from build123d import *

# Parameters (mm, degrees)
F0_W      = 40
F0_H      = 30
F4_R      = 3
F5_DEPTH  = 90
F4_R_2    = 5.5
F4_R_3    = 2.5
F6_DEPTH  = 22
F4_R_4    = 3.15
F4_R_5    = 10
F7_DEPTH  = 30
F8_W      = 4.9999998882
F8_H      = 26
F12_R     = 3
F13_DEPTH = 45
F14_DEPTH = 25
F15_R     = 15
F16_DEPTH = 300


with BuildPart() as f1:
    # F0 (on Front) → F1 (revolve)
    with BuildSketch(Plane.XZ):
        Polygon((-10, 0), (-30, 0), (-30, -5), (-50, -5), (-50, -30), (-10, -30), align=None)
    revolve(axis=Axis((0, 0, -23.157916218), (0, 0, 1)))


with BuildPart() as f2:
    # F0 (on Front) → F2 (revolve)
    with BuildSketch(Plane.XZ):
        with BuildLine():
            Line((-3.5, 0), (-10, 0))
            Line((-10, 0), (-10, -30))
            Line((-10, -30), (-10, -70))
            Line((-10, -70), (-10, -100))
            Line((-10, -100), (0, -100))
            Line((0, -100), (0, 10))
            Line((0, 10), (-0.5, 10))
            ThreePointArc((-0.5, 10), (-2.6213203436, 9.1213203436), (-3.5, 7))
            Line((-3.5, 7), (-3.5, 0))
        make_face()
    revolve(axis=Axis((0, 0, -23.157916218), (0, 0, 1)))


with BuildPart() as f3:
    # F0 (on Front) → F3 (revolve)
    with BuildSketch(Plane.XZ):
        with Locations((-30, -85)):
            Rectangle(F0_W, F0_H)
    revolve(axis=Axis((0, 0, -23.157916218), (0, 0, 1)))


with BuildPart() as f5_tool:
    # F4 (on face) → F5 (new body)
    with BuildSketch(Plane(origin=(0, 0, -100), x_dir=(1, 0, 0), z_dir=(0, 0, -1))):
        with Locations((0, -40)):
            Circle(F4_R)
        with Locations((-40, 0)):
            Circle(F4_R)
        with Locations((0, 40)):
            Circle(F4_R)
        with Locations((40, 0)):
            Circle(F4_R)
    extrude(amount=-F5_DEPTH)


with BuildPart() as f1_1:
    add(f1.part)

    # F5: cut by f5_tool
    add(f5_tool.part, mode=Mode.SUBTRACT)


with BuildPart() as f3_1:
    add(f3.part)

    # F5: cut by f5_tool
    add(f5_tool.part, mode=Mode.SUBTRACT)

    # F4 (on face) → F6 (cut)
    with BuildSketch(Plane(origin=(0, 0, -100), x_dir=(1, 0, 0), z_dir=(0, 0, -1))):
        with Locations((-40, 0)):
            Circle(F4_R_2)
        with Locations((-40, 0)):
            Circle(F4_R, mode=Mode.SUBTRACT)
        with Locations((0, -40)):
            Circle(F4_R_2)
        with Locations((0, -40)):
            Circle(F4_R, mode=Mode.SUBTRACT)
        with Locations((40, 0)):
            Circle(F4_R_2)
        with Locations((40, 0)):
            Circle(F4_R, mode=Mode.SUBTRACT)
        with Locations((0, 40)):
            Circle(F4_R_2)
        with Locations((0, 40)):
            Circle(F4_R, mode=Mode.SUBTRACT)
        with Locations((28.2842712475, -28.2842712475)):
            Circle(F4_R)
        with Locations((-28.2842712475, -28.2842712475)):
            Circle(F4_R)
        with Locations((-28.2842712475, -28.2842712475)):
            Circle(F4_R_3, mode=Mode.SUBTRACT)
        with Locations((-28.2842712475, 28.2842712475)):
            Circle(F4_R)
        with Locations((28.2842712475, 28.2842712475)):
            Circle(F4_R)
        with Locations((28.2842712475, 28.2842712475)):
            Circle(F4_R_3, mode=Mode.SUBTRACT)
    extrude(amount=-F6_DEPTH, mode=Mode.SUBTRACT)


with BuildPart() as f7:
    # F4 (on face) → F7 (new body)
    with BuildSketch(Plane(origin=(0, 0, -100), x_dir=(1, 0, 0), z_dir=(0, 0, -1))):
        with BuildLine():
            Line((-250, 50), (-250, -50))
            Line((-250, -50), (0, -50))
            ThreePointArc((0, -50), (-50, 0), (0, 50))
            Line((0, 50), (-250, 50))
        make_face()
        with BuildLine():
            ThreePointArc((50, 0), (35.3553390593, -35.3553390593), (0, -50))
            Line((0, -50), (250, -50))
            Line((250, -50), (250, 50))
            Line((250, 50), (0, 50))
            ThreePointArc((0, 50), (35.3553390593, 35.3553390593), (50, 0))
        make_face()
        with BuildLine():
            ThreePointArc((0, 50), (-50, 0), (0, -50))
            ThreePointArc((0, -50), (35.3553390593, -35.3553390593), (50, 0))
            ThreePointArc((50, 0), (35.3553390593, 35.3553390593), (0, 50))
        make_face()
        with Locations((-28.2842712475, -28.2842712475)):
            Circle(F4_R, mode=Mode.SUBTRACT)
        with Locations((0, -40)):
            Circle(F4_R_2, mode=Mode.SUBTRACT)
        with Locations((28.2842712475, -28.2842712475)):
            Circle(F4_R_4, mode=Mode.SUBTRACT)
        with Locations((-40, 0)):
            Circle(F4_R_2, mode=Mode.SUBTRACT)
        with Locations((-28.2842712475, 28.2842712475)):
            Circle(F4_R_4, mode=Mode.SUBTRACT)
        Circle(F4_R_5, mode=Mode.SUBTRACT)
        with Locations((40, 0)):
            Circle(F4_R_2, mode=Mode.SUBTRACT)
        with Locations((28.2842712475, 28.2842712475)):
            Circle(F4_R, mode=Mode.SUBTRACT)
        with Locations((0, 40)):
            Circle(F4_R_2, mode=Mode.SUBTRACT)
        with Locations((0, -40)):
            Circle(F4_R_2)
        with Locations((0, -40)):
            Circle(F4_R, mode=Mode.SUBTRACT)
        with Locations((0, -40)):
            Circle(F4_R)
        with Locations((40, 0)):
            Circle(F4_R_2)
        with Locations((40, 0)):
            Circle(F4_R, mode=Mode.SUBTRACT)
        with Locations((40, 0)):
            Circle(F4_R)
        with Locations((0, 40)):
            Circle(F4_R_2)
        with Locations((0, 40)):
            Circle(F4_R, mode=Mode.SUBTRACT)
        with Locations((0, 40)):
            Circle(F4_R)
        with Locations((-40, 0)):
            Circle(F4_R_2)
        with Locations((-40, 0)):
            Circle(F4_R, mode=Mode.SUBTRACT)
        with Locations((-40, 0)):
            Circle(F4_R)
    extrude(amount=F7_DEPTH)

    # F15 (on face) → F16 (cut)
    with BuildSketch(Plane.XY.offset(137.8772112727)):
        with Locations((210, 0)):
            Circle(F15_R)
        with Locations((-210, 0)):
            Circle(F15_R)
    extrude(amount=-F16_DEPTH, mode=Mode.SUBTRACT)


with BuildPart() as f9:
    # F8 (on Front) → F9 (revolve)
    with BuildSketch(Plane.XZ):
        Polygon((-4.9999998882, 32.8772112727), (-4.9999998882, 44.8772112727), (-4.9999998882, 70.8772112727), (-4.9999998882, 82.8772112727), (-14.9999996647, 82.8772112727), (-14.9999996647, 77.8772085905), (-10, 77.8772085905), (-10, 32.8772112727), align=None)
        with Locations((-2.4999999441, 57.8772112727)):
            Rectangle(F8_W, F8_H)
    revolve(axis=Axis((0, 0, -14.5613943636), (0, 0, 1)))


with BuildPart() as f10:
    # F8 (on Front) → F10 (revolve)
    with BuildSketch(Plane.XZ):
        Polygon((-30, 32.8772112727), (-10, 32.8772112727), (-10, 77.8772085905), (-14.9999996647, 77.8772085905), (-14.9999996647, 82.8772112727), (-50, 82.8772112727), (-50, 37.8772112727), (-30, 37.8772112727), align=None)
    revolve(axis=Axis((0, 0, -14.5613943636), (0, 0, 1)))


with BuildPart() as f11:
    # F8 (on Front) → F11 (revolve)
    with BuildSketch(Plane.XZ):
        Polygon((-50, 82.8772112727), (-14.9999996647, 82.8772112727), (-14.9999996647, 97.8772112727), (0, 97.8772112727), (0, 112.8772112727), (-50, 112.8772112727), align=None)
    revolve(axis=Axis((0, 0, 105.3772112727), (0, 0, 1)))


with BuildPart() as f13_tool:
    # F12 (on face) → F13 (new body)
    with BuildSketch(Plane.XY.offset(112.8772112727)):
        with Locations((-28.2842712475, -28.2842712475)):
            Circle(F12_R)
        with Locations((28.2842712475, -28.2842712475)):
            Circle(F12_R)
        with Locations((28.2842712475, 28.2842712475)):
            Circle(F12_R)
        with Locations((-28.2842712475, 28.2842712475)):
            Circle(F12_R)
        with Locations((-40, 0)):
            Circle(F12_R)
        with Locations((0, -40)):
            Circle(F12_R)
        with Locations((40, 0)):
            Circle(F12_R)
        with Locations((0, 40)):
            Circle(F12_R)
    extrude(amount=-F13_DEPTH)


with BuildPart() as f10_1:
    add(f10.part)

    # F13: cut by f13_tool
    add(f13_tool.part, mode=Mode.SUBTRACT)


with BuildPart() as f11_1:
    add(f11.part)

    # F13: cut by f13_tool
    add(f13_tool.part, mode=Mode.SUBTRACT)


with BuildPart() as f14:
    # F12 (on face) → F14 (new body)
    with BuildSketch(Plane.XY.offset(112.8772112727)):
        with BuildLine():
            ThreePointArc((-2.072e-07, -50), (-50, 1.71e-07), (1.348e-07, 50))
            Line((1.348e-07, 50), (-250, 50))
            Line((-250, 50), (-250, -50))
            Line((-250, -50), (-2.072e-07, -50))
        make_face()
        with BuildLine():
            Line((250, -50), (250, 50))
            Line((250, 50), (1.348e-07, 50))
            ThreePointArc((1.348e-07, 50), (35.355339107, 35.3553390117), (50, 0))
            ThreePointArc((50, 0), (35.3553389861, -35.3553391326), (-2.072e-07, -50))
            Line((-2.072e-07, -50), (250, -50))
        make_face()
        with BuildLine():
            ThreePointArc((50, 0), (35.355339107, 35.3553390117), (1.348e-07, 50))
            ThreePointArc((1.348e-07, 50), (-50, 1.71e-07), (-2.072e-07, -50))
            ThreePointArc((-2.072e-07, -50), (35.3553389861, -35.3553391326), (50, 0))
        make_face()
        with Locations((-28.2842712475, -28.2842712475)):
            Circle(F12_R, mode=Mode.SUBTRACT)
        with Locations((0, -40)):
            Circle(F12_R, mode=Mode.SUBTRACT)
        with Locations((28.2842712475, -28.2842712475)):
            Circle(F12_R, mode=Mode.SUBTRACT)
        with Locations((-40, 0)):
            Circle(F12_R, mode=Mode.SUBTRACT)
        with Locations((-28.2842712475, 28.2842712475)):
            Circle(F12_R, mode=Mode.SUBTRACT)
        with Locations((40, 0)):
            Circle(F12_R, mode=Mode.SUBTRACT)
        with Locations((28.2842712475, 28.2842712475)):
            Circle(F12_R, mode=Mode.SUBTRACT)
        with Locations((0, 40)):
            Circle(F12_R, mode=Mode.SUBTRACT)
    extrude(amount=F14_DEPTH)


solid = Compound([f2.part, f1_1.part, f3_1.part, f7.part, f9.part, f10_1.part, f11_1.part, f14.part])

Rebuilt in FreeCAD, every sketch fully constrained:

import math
import FreeCAD as App
import Part
import Sketcher


def add_polygon(sketch, points):
    """Adds a closed chain of lines whose ends are joined by coincident constraints."""
    first, n = sketch.GeometryCount, len(points)
    for a, b in zip(points, points[1:] + points[:1]):
        sketch.addGeometry(Part.LineSegment(App.Vector(*a, 0), App.Vector(*b, 0)), False)
    for i in range(n):
        sketch.addConstraint(Sketcher.Constraint("Coincident", first + i, 2, first + (i + 1) % n, 1))

doc = App.newDocument("Part")
body = doc.addObject("PartDesign::Body", "Body")

# Sketch on XZ plane
sketch1 = body.newObject("Sketcher::SketchObject", "Sketch")
sketch1.AttachmentSupport = (doc.getObject("XZ_Plane"), [""])
sketch1.MapMode = "FlatFace"
add_polygon(sketch1, [(-10, 0), (-30, 0), (-30, -5), (-50, -5), (-50, -30), (-10, -30)])  # lines 0-5
sketch1.addConstraint([
    Sketcher.Constraint("Horizontal", 0),
    Sketcher.Constraint("Vertical", 1),
    Sketcher.Constraint("Horizontal", 2),
    Sketcher.Constraint("Vertical", 3),
    Sketcher.Constraint("Horizontal", 4),
    Sketcher.Constraint("Vertical", 5),
    Sketcher.Constraint("PointOnObject", 0, 2, -1),
    Sketcher.Constraint("Equal", 0, 2),
    Sketcher.Constraint("DistanceX", 0, 2, 0, 1, 20.0),
    Sketcher.Constraint("DistanceY", 1, 2, 1, 1, 5.0),
    Sketcher.Constraint("DistanceY", 3, 2, 3, 1, 25.0),
    Sketcher.Constraint("DistanceX", 0, 2, -1, 1, 30.0),
])
revolution = body.newObject("PartDesign::Revolution", "Revolution")
revolution.Profile = sketch1
revolution.ReferenceAxis = (sketch1, ["V_Axis"])
revolution.Angle = 360
body2 = doc.addObject("PartDesign::Body", "Body001")

# Sketch on XZ plane
sketch2 = body2.newObject("Sketcher::SketchObject", "Sketch001")
sketch2.AttachmentSupport = (doc.getObject("XZ_Plane001"), [""])
sketch2.MapMode = "FlatFace"
sketch2.addGeometry([
    Part.LineSegment(App.Vector(-3.5, 0, 0), App.Vector(-10, 0, 0)),  # 0
    Part.LineSegment(App.Vector(-10, 0, 0), App.Vector(-10, -100, 0)),  # 1
    Part.LineSegment(App.Vector(-10, -100, 0), App.Vector(0, -100, 0)),  # 2
    Part.LineSegment(App.Vector(0, -100, 0), App.Vector(0, 10, 0)),  # 3
    Part.LineSegment(App.Vector(0, 10, 0), App.Vector(-0.5, 10, 0)),  # 4
    Part.ArcOfCircle(Part.Circle(App.Vector(-0.5, 7, 0), App.Vector(0, 0, 1), 3), math.radians(90), math.radians(180)),  # 5
    Part.LineSegment(App.Vector(-3.5, 7, 0), App.Vector(-3.5, 0, 0)),  # 6
], False)
sketch2.addConstraint([
    Sketcher.Constraint("Coincident", 0, 2, 1, 1),
    Sketcher.Constraint("Coincident", 1, 2, 2, 1),
    Sketcher.Constraint("Coincident", 2, 2, 3, 1),
    Sketcher.Constraint("Coincident", 3, 2, 4, 1),
    Sketcher.Constraint("Tangent", 4, 2, 5, 1),
    Sketcher.Constraint("Tangent", 5, 2, 6, 1),
    Sketcher.Constraint("Coincident", 6, 2, 0, 1),
    Sketcher.Constraint("Horizontal", 0),
    Sketcher.Constraint("Vertical", 1),
    Sketcher.Constraint("Horizontal", 2),
    Sketcher.Constraint("Vertical", 3),
    Sketcher.Constraint("Horizontal", 4),
    Sketcher.Constraint("Vertical", 6),
    Sketcher.Constraint("PointOnObject", 0, 2, -1),
    Sketcher.Constraint("PointOnObject", 2, 2, -2),
    Sketcher.Constraint("Radius", 5, 3.0),
    Sketcher.Constraint("DistanceX", 2, 1, 2, 2, 10.0),
    Sketcher.Constraint("DistanceY", 1, 2, 1, 1, 100.0),
    Sketcher.Constraint("DistanceY", 3, 1, 3, 2, 110.0),
    Sketcher.Constraint("DistanceX", 0, 2, 0, 1, 6.5),
])
revolution2 = body2.newObject("PartDesign::Revolution", "Revolution001")
revolution2.Profile = sketch2
revolution2.ReferenceAxis = (sketch2, ["V_Axis"])
revolution2.Angle = 360
body3 = doc.addObject("PartDesign::Body", "Body002")

# Sketch on XZ plane
sketch3 = body3.newObject("Sketcher::SketchObject", "Sketch002")
sketch3.AttachmentSupport = (doc.getObject("XZ_Plane002"), [""])
sketch3.MapMode = "FlatFace"
add_polygon(sketch3, [(-50, -70), (-50, -100), (-10, -100), (-10, -70)])  # lines 0-3
sketch3.addConstraint([
    Sketcher.Constraint("Vertical", 0),
    Sketcher.Constraint("Horizontal", 1),
    Sketcher.Constraint("Vertical", 2),
    Sketcher.Constraint("Horizontal", 3),
    Sketcher.Constraint("DistanceX", 1, 1, 1, 2, 40.0),
    Sketcher.Constraint("DistanceY", 0, 2, 0, 1, 30.0),
    Sketcher.Constraint("DistanceX", 0, 2, -1, 1, 50.0),
    Sketcher.Constraint("DistanceY", 0, 2, -1, 1, 100.0),
])
revolution3 = body3.newObject("PartDesign::Revolution", "Revolution002")
revolution3.Profile = sketch3
revolution3.ReferenceAxis = (sketch3, ["V_Axis"])
revolution3.Angle = 360
body4 = doc.addObject("PartDesign::Body", "Body003")
body4.AllowCompound = True

# Sketch on XY plane
sketch4 = body4.newObject("Sketcher::SketchObject", "Sketch003")
sketch4.AttachmentSupport = (doc.getObject("XY_Plane003"), [""])
sketch4.MapMode = "FlatFace"
sketch4.AttachmentOffset = App.Placement(App.Vector(0, 0, -100), App.Rotation())
sketch4.addGeometry([
    Part.Circle(App.Vector(0, 40, 0), App.Vector(0, 0, 1), 3),
    Part.Circle(App.Vector(-40, 0, 0), App.Vector(0, 0, 1), 3),
    Part.Circle(App.Vector(0, -40, 0), App.Vector(0, 0, 1), 3),
    Part.Circle(App.Vector(40, 0, 0), App.Vector(0, 0, 1), 3),
], False)
sketch4.addConstraint([
    Sketcher.Constraint("Equal", 0, 1),
    Sketcher.Constraint("Equal", 1, 2),
    Sketcher.Constraint("Equal", 2, 3),
    Sketcher.Constraint("Symmetric", 0, 3, 2, 3, -1, 1),
    Sketcher.Constraint("Symmetric", 1, 3, 3, 3, -1, 1),
    Sketcher.Constraint("PointOnObject", 0, 3, -2),
    Sketcher.Constraint("PointOnObject", 1, 3, -1),
    Sketcher.Constraint("Diameter", 0, 6.0),
    Sketcher.Constraint("DistanceY", -1, 1, 0, 3, 40.0),
    Sketcher.Constraint("DistanceX", 1, 3, -1, 1, 40.0),
])
pad1 = body4.newObject("PartDesign::Pad", "Pad")
pad1.Profile = sketch4
pad1.Length = 90
doc.recompute()

body5 = doc.addObject("PartDesign::Body", "Body004")
body5.BaseFeature = body4
boolean = body.newObject("PartDesign::Boolean", "Boolean")
boolean.Type = "Cut"
boolean.addObjects([body5])
doc.recompute()

boolean2 = body3.newObject("PartDesign::Boolean", "Boolean001")
boolean2.Type = "Cut"
boolean2.addObjects([body4])

# Sketch on XY plane
sketch5 = body3.newObject("Sketcher::SketchObject", "Sketch004")
sketch5.AttachmentSupport = (doc.getObject("XY_Plane002"), [""])
sketch5.MapMode = "FlatFace"
sketch5.AttachmentOffset = App.Placement(App.Vector(0, 0, -100), App.Rotation())
sketch5.addGeometry([
    Part.Circle(App.Vector(-40, 0, 0), App.Vector(0, 0, 1), 5.5),  # 0
    Part.Circle(App.Vector(-40, 0, 0), App.Vector(0, 0, 1), 3),  # 1
    Part.Circle(App.Vector(0, 40, 0), App.Vector(0, 0, 1), 5.5),  # 2
    Part.Circle(App.Vector(0, 40, 0), App.Vector(0, 0, 1), 3),  # 3
    Part.Circle(App.Vector(40, 0, 0), App.Vector(0, 0, 1), 5.5),  # 4
    Part.Circle(App.Vector(40, 0, 0), App.Vector(0, 0, 1), 3),  # 5
    Part.Circle(App.Vector(0, -40, 0), App.Vector(0, 0, 1), 5.5),  # 6
    Part.Circle(App.Vector(0, -40, 0), App.Vector(0, 0, 1), 3),  # 7
    Part.Circle(App.Vector(28.284271, 28.284271, 0), App.Vector(0, 0, 1), 3),  # 8
    Part.Circle(App.Vector(-28.284271, 28.284271, 0), App.Vector(0, 0, 1), 3),  # 9
    Part.Circle(App.Vector(-28.284271, 28.284271, 0), App.Vector(0, 0, 1), 2.5),  # 10
    Part.Circle(App.Vector(-28.284271, -28.284271, 0), App.Vector(0, 0, 1), 3),  # 11
    Part.Circle(App.Vector(28.284271, -28.284271, 0), App.Vector(0, 0, 1), 3),  # 12
    Part.Circle(App.Vector(28.284271, -28.284271, 0), App.Vector(0, 0, 1), 2.5),  # 13
], False)
sketch5.addConstraint([
    Sketcher.Constraint("Coincident", 1, 3, 0, 3),
    Sketcher.Constraint("Coincident", 3, 3, 2, 3),
    Sketcher.Constraint("Coincident", 5, 3, 4, 3),
    Sketcher.Constraint("Coincident", 7, 3, 6, 3),
    Sketcher.Constraint("Coincident", 10, 3, 9, 3),
    Sketcher.Constraint("Coincident", 13, 3, 12, 3),
    Sketcher.Constraint("Equal", 0, 2),
    Sketcher.Constraint("Equal", 1, 3),
    Sketcher.Constraint("Equal", 2, 4),
    Sketcher.Constraint("Equal", 3, 5),
    Sketcher.Constraint("Equal", 4, 6),
    Sketcher.Constraint("Equal", 5, 7),
    Sketcher.Constraint("Equal", 7, 8),
    Sketcher.Constraint("Equal", 8, 9),
    Sketcher.Constraint("Equal", 9, 11),
    Sketcher.Constraint("Equal", 11, 12),
    Sketcher.Constraint("Equal", 10, 13),
    Sketcher.Constraint("Symmetric", 0, 3, 4, 3, -1, 1),
    Sketcher.Constraint("Symmetric", 2, 3, 6, 3, -1, 1),
    Sketcher.Constraint("Symmetric", 8, 3, 11, 3, -1, 1),
    Sketcher.Constraint("Symmetric", 9, 3, 12, 3, -1, 1),
    Sketcher.Constraint("Symmetric", 8, 3, 9, 3, -2),
    Sketcher.Constraint("PointOnObject", 0, 3, -1),
    Sketcher.Constraint("PointOnObject", 2, 3, -2),
    Sketcher.Constraint("Diameter", 0, 11.0),
    Sketcher.Constraint("Diameter", 1, 6.0),
    Sketcher.Constraint("Diameter", 10, 5.0),
    Sketcher.Constraint("DistanceX", 0, 3, -1, 1, 40.0),
    Sketcher.Constraint("DistanceY", -1, 1, 2, 3, 40.0),
    Sketcher.Constraint("DistanceX", -1, 1, 8, 3, 28.284271),
    Sketcher.Constraint("DistanceY", -1, 1, 8, 3, 28.284271),
])
pocket1 = body3.newObject("PartDesign::Pocket", "Pocket")
pocket1.Profile = sketch5
pocket1.Length = 22
pocket1.Reversed = True
body6 = doc.addObject("PartDesign::Body", "Body005")

# Sketch on XY plane
sketch6 = body6.newObject("Sketcher::SketchObject", "Sketch005")
sketch6.AttachmentSupport = (doc.getObject("XY_Plane005"), [""])
sketch6.MapMode = "FlatFace"
sketch6.AttachmentOffset = App.Placement(App.Vector(0, 0, -100), App.Rotation())
add_polygon(sketch6, [(-250, -50), (-250, 50), (250, 50), (250, -50)])  # lines 0-3
sketch6.addGeometry(Part.Circle(App.Vector(-28.284271, 28.284271, 0), App.Vector(0, 0, 1), 3), False)  # 4
sketch6.addGeometry(Part.Circle(App.Vector(28.284271, 28.284271, 0), App.Vector(0, 0, 1), 3.15), False)  # 5
sketch6.addGeometry(Part.Circle(App.Vector(-28.284271, -28.284271, 0), App.Vector(0, 0, 1), 3.15), False)  # 6
sketch6.addGeometry(Part.Circle(App.Vector(0, 0, 0), App.Vector(0, 0, 1), 10), False)  # 7
sketch6.addGeometry(Part.Circle(App.Vector(28.284271, -28.284271, 0), App.Vector(0, 0, 1), 3), False)  # 8
sketch6.addConstraint([
    Sketcher.Constraint("Vertical", 0),
    Sketcher.Constraint("Horizontal", 1),
    Sketcher.Constraint("Vertical", 2),
    Sketcher.Constraint("Horizontal", 3),
    Sketcher.Constraint("Coincident", 7, 3, -1, 1),
    Sketcher.Constraint("Equal", 5, 6),
    Sketcher.Constraint("Equal", 4, 8),
    Sketcher.Constraint("Symmetric", 5, 3, 6, 3, -1, 1),
    Sketcher.Constraint("Symmetric", 4, 3, 8, 3, -1, 1),
    Sketcher.Constraint("Symmetric", 0, 2, 2, 2, -1, 1),
    Sketcher.Constraint("Symmetric", 4, 3, 5, 3, -2),
    Sketcher.Constraint("Diameter", 4, 6.0),
    Sketcher.Constraint("Diameter", 7, 20.0),
    Sketcher.Constraint("Diameter", 5, 6.3),
    Sketcher.Constraint("DistanceX", 1, 1, 1, 2, 500.0),
    Sketcher.Constraint("DistanceY", 0, 1, 0, 2, 100.0),
    Sketcher.Constraint("DistanceX", 4, 3, -1, 1, 28.284271),
    Sketcher.Constraint("DistanceY", -1, 1, 4, 3, 28.284271),
])
pad2 = body6.newObject("PartDesign::Pad", "Pad001")
pad2.Profile = sketch6
pad2.Length = 30
pad2.Reversed = True

# Sketch on XY plane
sketch7 = body6.newObject("Sketcher::SketchObject", "Sketch006")
sketch7.AttachmentSupport = (doc.getObject("XY_Plane005"), [""])
sketch7.MapMode = "FlatFace"
sketch7.AttachmentOffset = App.Placement(App.Vector(0, 0, 137.877211), App.Rotation())
sketch7.addGeometry([
    Part.Circle(App.Vector(210, 0, 0), App.Vector(0, 0, 1), 15),
    Part.Circle(App.Vector(-210, 0, 0), App.Vector(0, 0, 1), 15),
], False)
sketch7.addConstraint([
    Sketcher.Constraint("Equal", 0, 1),
    Sketcher.Constraint("Symmetric", 0, 3, 1, 3, -1, 1),
    Sketcher.Constraint("PointOnObject", 0, 3, -1),
    Sketcher.Constraint("Diameter", 0, 30.0),
    Sketcher.Constraint("DistanceX", -1, 1, 0, 3, 210.0),
])
pocket2 = body6.newObject("PartDesign::Pocket", "Pocket001")
pocket2.Profile = sketch7
pocket2.Length = 300
body7 = doc.addObject("PartDesign::Body", "Body006")

# Sketch on XZ plane
sketch8 = body7.newObject("Sketcher::SketchObject", "Sketch007")
sketch8.AttachmentSupport = (doc.getObject("XZ_Plane006"), [""])
sketch8.MapMode = "FlatFace"
add_polygon(sketch8, [(-5, 32.877211), (-5, 44.877211), (0, 44.877211), (0, 70.877211), (-5, 70.877211), (-5, 82.877211), (-15, 82.877211), (-15, 77.877209), (-10, 77.877209), (-10, 32.877211)])  # lines 0-9
sketch8.addConstraint([
    Sketcher.Constraint("Vertical", 0),
    Sketcher.Constraint("Horizontal", 1),
    Sketcher.Constraint("Vertical", 2),
    Sketcher.Constraint("Horizontal", 3),
    Sketcher.Constraint("Vertical", 4),
    Sketcher.Constraint("Horizontal", 5),
    Sketcher.Constraint("Vertical", 6),
    Sketcher.Constraint("Horizontal", 7),
    Sketcher.Constraint("Vertical", 8),
    Sketcher.Constraint("Horizontal", 9),
    Sketcher.Constraint("PointOnObject", 1, 2, -2),
    Sketcher.Constraint("Vertical", 0, 2, 3, 2),
    Sketcher.Constraint("Equal", 3, 7),
    Sketcher.Constraint("Equal", 7, 9),
    Sketcher.Constraint("Equal", 0, 4),
    Sketcher.Constraint("DistanceX", 1, 1, 1, 2, 5.0),
    Sketcher.Constraint("DistanceY", 0, 1, 0, 2, 12.0),
    Sketcher.Constraint("DistanceY", 2, 1, 2, 2, 26.0),
    Sketcher.Constraint("DistanceY", 6, 2, 6, 1, 5.000003),
    Sketcher.Constraint("DistanceY", -1, 1, 0, 2, 44.877211),
])
revolution4 = body7.newObject("PartDesign::Revolution", "Revolution003")
revolution4.Profile = sketch8
revolution4.ReferenceAxis = (sketch8, ["V_Axis"])
revolution4.Angle = 360
body8 = doc.addObject("PartDesign::Body", "Body007")

# Sketch on XZ plane
sketch9 = body8.newObject("Sketcher::SketchObject", "Sketch008")
sketch9.AttachmentSupport = (doc.getObject("XZ_Plane007"), [""])
sketch9.MapMode = "FlatFace"
add_polygon(sketch9, [(-30, 32.877211), (-10, 32.877211), (-10, 77.877209), (-15, 77.877209), (-15, 82.877211), (-50, 82.877211), (-50, 37.877211), (-30, 37.877211)])  # lines 0-7
sketch9.addConstraint([
    Sketcher.Constraint("Horizontal", 0),
    Sketcher.Constraint("Vertical", 1),
    Sketcher.Constraint("Horizontal", 2),
    Sketcher.Constraint("Vertical", 3),
    Sketcher.Constraint("Horizontal", 4),
    Sketcher.Constraint("Vertical", 5),
    Sketcher.Constraint("Horizontal", 6),
    Sketcher.Constraint("Vertical", 7),
    Sketcher.Constraint("Equal", 0, 6),
    Sketcher.Constraint("Equal", 2, 7),
    Sketcher.Constraint("DistanceX", 0, 1, 0, 2, 20.0),
    Sketcher.Constraint("DistanceX", 2, 2, 2, 1, 5.0),
    Sketcher.Constraint("DistanceY", 5, 2, 5, 1, 45.0),
    Sketcher.Constraint("DistanceX", 0, 2, -1, 1, 10.0),
    Sketcher.Constraint("DistanceY", 1, 1, 1, 2, 44.999997),
    Sketcher.Constraint("DistanceY", -1, 1, 0, 2, 32.877211),
])
revolution5 = body8.newObject("PartDesign::Revolution", "Revolution004")
revolution5.Profile = sketch9
revolution5.ReferenceAxis = (sketch9, ["V_Axis"])
revolution5.Angle = 360
body9 = doc.addObject("PartDesign::Body", "Body008")

# Sketch on XZ plane
sketch10 = body9.newObject("Sketcher::SketchObject", "Sketch009")
sketch10.AttachmentSupport = (doc.getObject("XZ_Plane008"), [""])
sketch10.MapMode = "FlatFace"
add_polygon(sketch10, [(-50, 82.877211), (-15, 82.877211), (-15, 97.877211), (0, 97.877211), (0, 112.877211), (-50, 112.877211)])  # lines 0-5
sketch10.addConstraint([
    Sketcher.Constraint("Horizontal", 0),
    Sketcher.Constraint("Vertical", 1),
    Sketcher.Constraint("Horizontal", 2),
    Sketcher.Constraint("Vertical", 3),
    Sketcher.Constraint("Horizontal", 4),
    Sketcher.Constraint("Vertical", 5),
    Sketcher.Constraint("PointOnObject", 2, 2, -2),
    Sketcher.Constraint("Equal", 2, 1),
    Sketcher.Constraint("Equal", 1, 3),
    Sketcher.Constraint("DistanceX", 0, 1, 0, 2, 35.0),
    Sketcher.Constraint("DistanceX", 2, 1, 2, 2, 15.0),
    Sketcher.Constraint("DistanceY", -1, 1, 0, 2, 82.877211),
])
revolution6 = body9.newObject("PartDesign::Revolution", "Revolution005")
revolution6.Profile = sketch10
revolution6.ReferenceAxis = (sketch10, ["V_Axis"])
revolution6.Angle = 360
body10 = doc.addObject("PartDesign::Body", "Body009")
body10.AllowCompound = True

# Sketch on XY plane
sketch11 = body10.newObject("Sketcher::SketchObject", "Sketch010")
sketch11.AttachmentSupport = (doc.getObject("XY_Plane009"), [""])
sketch11.MapMode = "FlatFace"
sketch11.AttachmentOffset = App.Placement(App.Vector(0, 0, 112.877211), App.Rotation())
sketch11.addGeometry([
    Part.Circle(App.Vector(-28.284271, -28.284271, 0), App.Vector(0, 0, 1), 3),  # 0
    Part.Circle(App.Vector(28.284271, -28.284271, 0), App.Vector(0, 0, 1), 3),  # 1
    Part.Circle(App.Vector(28.284271, 28.284271, 0), App.Vector(0, 0, 1), 3),  # 2
    Part.Circle(App.Vector(-28.284271, 28.284271, 0), App.Vector(0, 0, 1), 3),  # 3
    Part.Circle(App.Vector(-40, 0, 0), App.Vector(0, 0, 1), 3),  # 4
    Part.Circle(App.Vector(0, -40, 0), App.Vector(0, 0, 1), 3),  # 5
    Part.Circle(App.Vector(40, 0, 0), App.Vector(0, 0, 1), 3),  # 6
    Part.Circle(App.Vector(0, 40, 0), App.Vector(0, 0, 1), 3),  # 7
], False)
sketch11.addConstraint([
    Sketcher.Constraint("Equal", 0, 1),
    Sketcher.Constraint("Equal", 1, 2),
    Sketcher.Constraint("Equal", 2, 3),
    Sketcher.Constraint("Equal", 3, 4),
    Sketcher.Constraint("Equal", 4, 5),
    Sketcher.Constraint("Equal", 5, 6),
    Sketcher.Constraint("Equal", 6, 7),
    Sketcher.Constraint("Symmetric", 0, 3, 2, 3, -1, 1),
    Sketcher.Constraint("Symmetric", 1, 3, 3, 3, -1, 1),
    Sketcher.Constraint("Symmetric", 4, 3, 6, 3, -1, 1),
    Sketcher.Constraint("Symmetric", 5, 3, 7, 3, -1, 1),
    Sketcher.Constraint("Symmetric", 0, 3, 1, 3, -2),
    Sketcher.Constraint("PointOnObject", 4, 3, -1),
    Sketcher.Constraint("PointOnObject", 5, 3, -2),
    Sketcher.Constraint("Diameter", 0, 6.0),
    Sketcher.Constraint("DistanceX", 4, 3, -1, 1, 40.0),
    Sketcher.Constraint("DistanceY", 5, 3, -1, 1, 40.0),
    Sketcher.Constraint("DistanceX", 0, 3, -1, 1, 28.284271),
    Sketcher.Constraint("DistanceY", 0, 3, -1, 1, 28.284271),
])
pad3 = body10.newObject("PartDesign::Pad", "Pad002")
pad3.Profile = sketch11
pad3.Length = 45
pad3.Reversed = True
doc.recompute()

body11 = doc.addObject("PartDesign::Body", "Body010")
body11.BaseFeature = body10
boolean3 = body8.newObject("PartDesign::Boolean", "Boolean002")
boolean3.Type = "Cut"
boolean3.addObjects([body11])
doc.recompute()

boolean4 = body9.newObject("PartDesign::Boolean", "Boolean003")
boolean4.Type = "Cut"
boolean4.addObjects([body10])
body12 = doc.addObject("PartDesign::Body", "Body011")

# Sketch on XY plane
sketch12 = body12.newObject("Sketcher::SketchObject", "Sketch011")
sketch12.AttachmentSupport = (doc.getObject("XY_Plane011"), [""])
sketch12.MapMode = "FlatFace"
sketch12.AttachmentOffset = App.Placement(App.Vector(0, 0, 112.877211), App.Rotation())
add_polygon(sketch12, [(-250, 50), (-250, -50), (250, -50), (250, 50)])  # lines 0-3
sketch12.addGeometry(Part.Circle(App.Vector(-28.284271, -28.284271, 0), App.Vector(0, 0, 1), 3), False)  # 4
sketch12.addGeometry(Part.Circle(App.Vector(0, -40, 0), App.Vector(0, 0, 1), 3), False)  # 5
sketch12.addGeometry(Part.Circle(App.Vector(28.284271, -28.284271, 0), App.Vector(0, 0, 1), 3), False)  # 6
sketch12.addGeometry(Part.Circle(App.Vector(-40, 0, 0), App.Vector(0, 0, 1), 3), False)  # 7
sketch12.addGeometry(Part.Circle(App.Vector(-28.284271, 28.284271, 0), App.Vector(0, 0, 1), 3), False)  # 8
sketch12.addGeometry(Part.Circle(App.Vector(40, 0, 0), App.Vector(0, 0, 1), 3), False)  # 9
sketch12.addGeometry(Part.Circle(App.Vector(0, 40, 0), App.Vector(0, 0, 1), 3), False)  # 10
sketch12.addGeometry(Part.Circle(App.Vector(28.284271, 28.284271, 0), App.Vector(0, 0, 1), 3), False)  # 11
sketch12.addConstraint([
    Sketcher.Constraint("Vertical", 0),
    Sketcher.Constraint("Horizontal", 1),
    Sketcher.Constraint("Vertical", 2),
    Sketcher.Constraint("Horizontal", 3),
    Sketcher.Constraint("Equal", 4, 5),
    Sketcher.Constraint("Equal", 5, 6),
    Sketcher.Constraint("Equal", 6, 7),
    Sketcher.Constraint("Equal", 7, 8),
    Sketcher.Constraint("Equal", 8, 9),
    Sketcher.Constraint("Equal", 9, 10),
    Sketcher.Constraint("Equal", 10, 11),
    Sketcher.Constraint("Symmetric", 6, 3, 8, 3, -1, 1),
    Sketcher.Constraint("Symmetric", 7, 3, 9, 3, -1, 1),
    Sketcher.Constraint("Symmetric", 5, 3, 10, 3, -1, 1),
    Sketcher.Constraint("Symmetric", 4, 3, 11, 3, -1, 1),
    Sketcher.Constraint("Symmetric", 0, 2, 2, 2, -1, 1),
    Sketcher.Constraint("Symmetric", 4, 3, 6, 3, -2),
    Sketcher.Constraint("PointOnObject", 5, 3, -2),
    Sketcher.Constraint("PointOnObject", 7, 3, -1),
    Sketcher.Constraint("Diameter", 4, 6.0),
    Sketcher.Constraint("DistanceX", 1, 1, 1, 2, 500.0),
    Sketcher.Constraint("DistanceY", 0, 2, 0, 1, 100.0),
    Sketcher.Constraint("DistanceY", 5, 3, -1, 1, 40.0),
    Sketcher.Constraint("DistanceX", 7, 3, -1, 1, 40.0),
    Sketcher.Constraint("DistanceX", 4, 3, -1, 1, 28.284271),
    Sketcher.Constraint("DistanceY", 4, 3, -1, 1, 28.284271),
])
pad4 = body12.newObject("PartDesign::Pad", "Pad003")
pad4.Profile = sketch12
pad4.Length = 25

doc.recompute()
